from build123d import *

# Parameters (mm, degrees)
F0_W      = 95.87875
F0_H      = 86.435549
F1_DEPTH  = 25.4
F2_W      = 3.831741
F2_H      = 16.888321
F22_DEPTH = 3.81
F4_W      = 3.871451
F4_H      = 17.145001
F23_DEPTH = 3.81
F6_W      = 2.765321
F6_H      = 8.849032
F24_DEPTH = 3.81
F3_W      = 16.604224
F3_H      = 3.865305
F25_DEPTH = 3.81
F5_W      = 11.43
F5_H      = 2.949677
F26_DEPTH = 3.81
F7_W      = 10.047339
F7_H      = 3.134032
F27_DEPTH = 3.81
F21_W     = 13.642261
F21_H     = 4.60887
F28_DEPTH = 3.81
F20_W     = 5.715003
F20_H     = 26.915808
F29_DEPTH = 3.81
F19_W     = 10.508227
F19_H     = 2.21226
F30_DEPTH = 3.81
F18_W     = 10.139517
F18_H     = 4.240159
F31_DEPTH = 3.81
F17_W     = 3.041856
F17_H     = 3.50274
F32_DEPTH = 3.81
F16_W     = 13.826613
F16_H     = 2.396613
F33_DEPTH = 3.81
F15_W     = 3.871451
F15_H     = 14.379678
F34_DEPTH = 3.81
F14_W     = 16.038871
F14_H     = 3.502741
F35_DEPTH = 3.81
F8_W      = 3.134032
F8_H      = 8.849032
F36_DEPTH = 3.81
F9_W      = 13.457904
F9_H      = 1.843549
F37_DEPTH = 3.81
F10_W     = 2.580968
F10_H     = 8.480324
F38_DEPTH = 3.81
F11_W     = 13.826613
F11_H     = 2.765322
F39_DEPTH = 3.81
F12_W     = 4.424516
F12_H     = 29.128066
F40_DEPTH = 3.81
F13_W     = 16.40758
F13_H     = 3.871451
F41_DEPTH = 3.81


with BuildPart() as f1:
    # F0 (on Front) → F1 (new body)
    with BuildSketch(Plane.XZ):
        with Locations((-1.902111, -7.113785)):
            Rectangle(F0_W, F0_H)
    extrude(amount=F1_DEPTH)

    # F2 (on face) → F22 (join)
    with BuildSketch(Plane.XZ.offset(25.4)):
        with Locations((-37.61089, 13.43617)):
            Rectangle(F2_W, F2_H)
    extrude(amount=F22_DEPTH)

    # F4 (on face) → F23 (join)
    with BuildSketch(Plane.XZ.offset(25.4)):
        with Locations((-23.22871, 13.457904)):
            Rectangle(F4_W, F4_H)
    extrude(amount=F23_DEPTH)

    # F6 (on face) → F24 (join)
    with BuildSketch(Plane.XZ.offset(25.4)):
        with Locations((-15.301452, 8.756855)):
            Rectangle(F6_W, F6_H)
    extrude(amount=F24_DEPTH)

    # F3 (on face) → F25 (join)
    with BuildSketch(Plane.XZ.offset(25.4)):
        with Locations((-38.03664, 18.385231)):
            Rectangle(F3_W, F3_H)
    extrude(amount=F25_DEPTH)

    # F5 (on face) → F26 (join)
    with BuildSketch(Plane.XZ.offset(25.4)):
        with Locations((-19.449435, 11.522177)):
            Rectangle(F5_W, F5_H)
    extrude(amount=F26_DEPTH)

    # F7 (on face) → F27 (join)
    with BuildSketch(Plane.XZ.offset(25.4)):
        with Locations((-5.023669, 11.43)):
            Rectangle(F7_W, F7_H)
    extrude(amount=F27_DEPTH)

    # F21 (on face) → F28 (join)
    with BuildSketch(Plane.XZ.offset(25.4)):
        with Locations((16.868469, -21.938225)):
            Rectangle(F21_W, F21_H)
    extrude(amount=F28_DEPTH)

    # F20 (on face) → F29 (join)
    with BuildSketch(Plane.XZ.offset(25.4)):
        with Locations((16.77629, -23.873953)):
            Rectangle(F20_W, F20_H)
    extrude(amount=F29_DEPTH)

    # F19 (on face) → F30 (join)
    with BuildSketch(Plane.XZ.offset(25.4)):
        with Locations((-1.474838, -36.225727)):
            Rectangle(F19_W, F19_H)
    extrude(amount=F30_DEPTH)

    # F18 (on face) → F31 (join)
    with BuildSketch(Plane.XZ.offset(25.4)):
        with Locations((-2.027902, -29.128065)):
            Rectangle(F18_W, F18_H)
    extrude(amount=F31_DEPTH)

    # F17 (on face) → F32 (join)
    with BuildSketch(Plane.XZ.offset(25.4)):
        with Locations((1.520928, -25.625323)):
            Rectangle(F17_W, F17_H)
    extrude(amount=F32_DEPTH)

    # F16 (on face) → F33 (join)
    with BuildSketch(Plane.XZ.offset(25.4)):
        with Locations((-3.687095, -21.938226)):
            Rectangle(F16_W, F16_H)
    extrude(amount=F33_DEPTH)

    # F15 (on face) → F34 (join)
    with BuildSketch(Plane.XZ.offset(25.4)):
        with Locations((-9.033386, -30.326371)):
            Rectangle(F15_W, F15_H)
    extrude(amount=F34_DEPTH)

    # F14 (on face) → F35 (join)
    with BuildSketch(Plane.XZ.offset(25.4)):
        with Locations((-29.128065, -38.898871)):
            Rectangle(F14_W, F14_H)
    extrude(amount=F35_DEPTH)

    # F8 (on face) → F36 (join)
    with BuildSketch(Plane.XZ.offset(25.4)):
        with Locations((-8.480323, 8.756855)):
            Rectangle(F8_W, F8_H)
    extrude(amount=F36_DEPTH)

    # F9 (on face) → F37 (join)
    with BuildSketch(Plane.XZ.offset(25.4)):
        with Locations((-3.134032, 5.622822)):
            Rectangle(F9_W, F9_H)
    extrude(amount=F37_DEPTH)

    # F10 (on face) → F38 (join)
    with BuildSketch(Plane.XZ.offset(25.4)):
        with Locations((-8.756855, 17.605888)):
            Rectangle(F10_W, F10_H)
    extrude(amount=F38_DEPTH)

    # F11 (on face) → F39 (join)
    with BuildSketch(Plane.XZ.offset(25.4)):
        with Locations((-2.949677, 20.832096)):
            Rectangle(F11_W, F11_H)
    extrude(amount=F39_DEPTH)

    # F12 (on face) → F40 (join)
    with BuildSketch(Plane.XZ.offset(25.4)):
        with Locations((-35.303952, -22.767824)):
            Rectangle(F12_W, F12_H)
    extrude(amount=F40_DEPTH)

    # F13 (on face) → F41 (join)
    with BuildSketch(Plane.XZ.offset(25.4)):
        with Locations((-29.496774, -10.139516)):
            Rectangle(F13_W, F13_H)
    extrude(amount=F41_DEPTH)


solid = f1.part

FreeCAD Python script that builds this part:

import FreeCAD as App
import Part
import Sketcher
Q = App.Units.Quantity

doc = App.newDocument("Part")
body = doc.addObject("PartDesign::Body", "Body")

# Sketch on XZ plane
sketch1 = body.newObject("Sketcher::SketchObject", "Sketch")
sketch1.AttachmentSupport = (doc.getObject("XZ_Plane"), [""])
sketch1.MapMode = "FlatFace"
sketch1.addGeometry(Part.LineSegment(App.Vector(-50, 36, 0), App.Vector(-50, -50, 0)), False)
sketch1.addGeometry(Part.LineSegment(App.Vector(-50, -50, 0), App.Vector(46, -50, 0)), False)
sketch1.addGeometry(Part.LineSegment(App.Vector(46, -50, 0), App.Vector(46, 36, 0)), False)
sketch1.addGeometry(Part.LineSegment(App.Vector(46, 36, 0), App.Vector(-50, 36, 0)), False)
sketch1.addConstraint(Sketcher.Constraint("Coincident", 0, 2, 1, 1))
sketch1.addConstraint(Sketcher.Constraint("Coincident", 1, 2, 2, 1))
sketch1.addConstraint(Sketcher.Constraint("Coincident", 2, 2, 3, 1))
sketch1.addConstraint(Sketcher.Constraint("Coincident", 3, 2, 0, 1))
sketch1.addConstraint(Sketcher.Constraint("Vertical", 0))
sketch1.addConstraint(Sketcher.Constraint("Horizontal", 1))
sketch1.addConstraint(Sketcher.Constraint("Vertical", 2))
sketch1.addConstraint(Sketcher.Constraint("Horizontal", 3))
sketch1.addConstraint(Sketcher.Constraint("DistanceX", 1, 1, 1, 2, 95.87875))
sketch1.addConstraint(Sketcher.Constraint("DistanceY", 0, 2, 0, 1, 86.435549))
sketch1.addConstraint(Sketcher.Constraint("DistanceY", 0, 2, -1, 1, 50.331559))
sketch1.addConstraint(Sketcher.Constraint("DistanceX", 0, 2, -1, 1, 49.841486))
pad1 = body.newObject("PartDesign::Pad", "Pad")
pad1.Profile = sketch1
pad1.Length = Q("1 in")

# Sketch on XZ plane
sketch2 = body.newObject("Sketcher::SketchObject", "Sketch001")
sketch2.AttachmentSupport = (doc.getObject("XZ_Plane"), [""])
sketch2.MapMode = "FlatFace"
sketch2.AttachmentOffset = App.Placement(App.Vector(0, 0, 1 * 25.4), App.Rotation())
sketch2.addGeometry(Part.LineSegment(App.Vector(-39.5, 21.9, 0), App.Vector(-39.5, 5, 0)), False)
sketch2.addGeometry(Part.LineSegment(App.Vector(-39.5, 5, 0), App.Vector(-35.7, 5, 0)), False)
sketch2.addGeometry(Part.LineSegment(App.Vector(-35.7, 5, 0), App.Vector(-35.7, 21.9, 0)), False)
sketch2.addGeometry(Part.LineSegment(App.Vector(-35.7, 21.9, 0), App.Vector(-39.5, 21.9, 0)), False)
sketch2.addConstraint(Sketcher.Constraint("Coincident", 0, 2, 1, 1))
sketch2.addConstraint(Sketcher.Constraint("Coincident", 1, 2, 2, 1))
sketch2.addConstraint(Sketcher.Constraint("Coincident", 2, 2, 3, 1))
sketch2.addConstraint(Sketcher.Constraint("Coincident", 3, 2, 0, 1))
sketch2.addConstraint(Sketcher.Constraint("Vertical", 0))
sketch2.addConstraint(Sketcher.Constraint("Horizontal", 1))
sketch2.addConstraint(Sketcher.Constraint("Vertical", 2))
sketch2.addConstraint(Sketcher.Constraint("Horizontal", 3))
sketch2.addConstraint(Sketcher.Constraint("DistanceX", 1, 1, 1, 2, 3.831741))
sketch2.addConstraint(Sketcher.Constraint("DistanceY", 0, 2, 0, 1, 16.888321))
sketch2.addConstraint(Sketcher.Constraint("DistanceX", 0, 2, -1, 1, 39.526761))
sketch2.addConstraint(Sketcher.Constraint("DistanceY", -1, 1, 0, 2, 4.992009))
pad2 = body.newObject("PartDesign::Pad", "Pad001")
pad2.Profile = sketch2
pad2.Length = Q("0.15 in")

# Sketch on XZ plane
sketch3 = body.newObject("Sketcher::SketchObject", "Sketch002")
sketch3.AttachmentSupport = (doc.getObject("XZ_Plane"), [""])
sketch3.MapMode = "FlatFace"
sketch3.AttachmentOffset = App.Placement(App.Vector(0, 0, 1 * 25.4), App.Rotation())
sketch3.addGeometry(Part.LineSegment(App.Vector(-25.2, 22, 0), App.Vector(-25.2, 4.9, 0)), False)
sketch3.addGeometry(Part.LineSegment(App.Vector(-25.2, 4.9, 0), App.Vector(-21.3, 4.9, 0)), False)
sketch3.addGeometry(Part.LineSegment(App.Vector(-21.3, 4.9, 0), App.Vector(-21.3, 22, 0)), False)
sketch3.addGeometry(Part.LineSegment(App.Vector(-21.3, 22, 0), App.Vector(-25.2, 22, 0)), False)
sketch3.addConstraint(Sketcher.Constraint("Coincident", 0, 2, 1, 1))
sketch3.addConstraint(Sketcher.Constraint("Coincident", 1, 2, 2, 1))
sketch3.addConstraint(Sketcher.Constraint("Coincident", 2, 2, 3, 1))
sketch3.addConstraint(Sketcher.Constraint("Coincident", 3, 2, 0, 1))
sketch3.addConstraint(Sketcher.Constraint("Vertical", 0))
sketch3.addConstraint(Sketcher.Constraint("Horizontal", 1))
sketch3.addConstraint(Sketcher.Constraint("Vertical", 2))
sketch3.addConstraint(Sketcher.Constraint("Horizontal", 3))
sketch3.addConstraint(Sketcher.Constraint("DistanceY", 0, 2, 0, 1, Q("0.675 in")))
sketch3.addConstraint(Sketcher.Constraint("DistanceX", 1, 1, 1, 2, 3.871451))
sketch3.addConstraint(Sketcher.Constraint("DistanceX", 0, 2, -1, 1, 25.164435))
sketch3.addConstraint(Sketcher.Constraint("DistanceY", -1, 1, 0, 2, 4.885403))
pad3 = body.newObject("PartDesign::Pad", "Pad002")
pad3.Profile = sketch3
pad3.Length = Q("0.15 in")

# Sketch on XZ plane
sketch4 = body.newObject("Sketcher::SketchObject", "Sketch003")
sketch4.AttachmentSupport = (doc.getObject("XZ_Plane"), [""])
sketch4.MapMode = "FlatFace"
sketch4.AttachmentOffset = App.Placement(App.Vector(0, 0, 1 * 25.4), App.Rotation())
sketch4.addGeometry(Part.LineSegment(App.Vector(-16.7, 13.2, 0), App.Vector(-16.7, 4.3, 0)), False)
sketch4.addGeometry(Part.LineSegment(App.Vector(-16.7, 4.3, 0), App.Vector(-13.9, 4.3, 0)), False)
sketch4.addGeometry(Part.LineSegment(App.Vector(-13.9, 4.3, 0), App.Vector(-13.9, 13.2, 0)), False)
sketch4.addGeometry(Part.LineSegment(App.Vector(-13.9, 13.2, 0), App.Vector(-16.7, 13.2, 0)), False)
sketch4.addConstraint(Sketcher.Constraint("Coincident", 0, 2, 1, 1))
sketch4.addConstraint(Sketcher.Constraint("Coincident", 1, 2, 2, 1))
sketch4.addConstraint(Sketcher.Constraint("Coincident", 2, 2, 3, 1))
sketch4.addConstraint(Sketcher.Constraint("Coincident", 3, 2, 0, 1))
sketch4.addConstraint(Sketcher.Constraint("Vertical", 0))
sketch4.addConstraint(Sketcher.Constraint("Horizontal", 1))
sketch4.addConstraint(Sketcher.Constraint("Vertical", 2))
sketch4.addConstraint(Sketcher.Constraint("Horizontal", 3))
sketch4.addConstraint(Sketcher.Constraint("DistanceX", 1, 1, 1, 2, 2.765321))
sketch4.addConstraint(Sketcher.Constraint("DistanceY", 0, 2, 0, 1, 8.849032))
sketch4.addConstraint(Sketcher.Constraint("DistanceY", -1, 1, 0, 2, 4.332339))
sketch4.addConstraint(Sketcher.Constraint("DistanceX", 1, 2, -1, 1, 13.918791))
pad4 = body.newObject("PartDesign::Pad", "Pad003")
pad4.Profile = sketch4
pad4.Length = Q("0.15 in")

# Sketch on XZ plane
sketch5 = body.newObject("Sketcher::SketchObject", "Sketch004")
sketch5.AttachmentSupport = (doc.getObject("XZ_Plane"), [""])
sketch5.MapMode = "FlatFace"
sketch5.AttachmentOffset = App.Placement(App.Vector(0, 0, 1 * 25.4), App.Rotation())
sketch5.addGeometry(Part.LineSegment(App.Vector(-46.3, 20.3, 0), App.Vector(-46.3, 16.5, 0)), False)
sketch5.addGeometry(Part.LineSegment(App.Vector(-46.3, 16.5, 0), App.Vector(-29.7, 16.5, 0)), False)
sketch5.addGeometry(Part.LineSegment(App.Vector(-29.7, 16.5, 0), App.Vector(-29.7, 20.3, 0)), False)
sketch5.addGeometry(Part.LineSegment(App.Vector(-29.7, 20.3, 0), App.Vector(-46.3, 20.3, 0)), False)
sketch5.addConstraint(Sketcher.Constraint("Coincident", 0, 2, 1, 1))
sketch5.addConstraint(Sketcher.Constraint("Coincident", 1, 2, 2, 1))
sketch5.addConstraint(Sketcher.Constraint("Coincident", 2, 2, 3, 1))
sketch5.addConstraint(Sketcher.Constraint("Coincident", 3, 2, 0, 1))
sketch5.addConstraint(Sketcher.Constraint("Vertical", 0))
sketch5.addConstraint(Sketcher.Constraint("Horizontal", 1))
sketch5.addConstraint(Sketcher.Constraint("Vertical", 2))
sketch5.addConstraint(Sketcher.Constraint("Horizontal", 3))
sketch5.addConstraint(Sketcher.Constraint("DistanceX", 1, 1, 1, 2, 16.604224))
sketch5.addConstraint(Sketcher.Constraint("DistanceY", 0, 2, 0, 1, 3.865305))
sketch5.addConstraint(Sketcher.Constraint("DistanceY", -1, 1, 0, 2, 16.452579))
sketch5.addConstraint(Sketcher.Constraint("DistanceX", 1, 2, -1, 1, 29.734528))
pad5 = body.newObject("PartDesign::Pad", "Pad004")
pad5.Profile = sketch5
pad5.Length = Q("0.15 in")

# Sketch on XZ plane
sketch6 = body.newObject("Sketcher::SketchObject", "Sketch005")
sketch6.AttachmentSupport = (doc.getObject("XZ_Plane"), [""])
sketch6.MapMode = "FlatFace"
sketch6.AttachmentOffset = App.Placement(App.Vector(0, 0, 1 * 25.4), App.Rotation())
sketch6.addGeometry(Part.LineSegment(App.Vector(-25.2, 13, 0), App.Vector(-25.2, 10, 0)), False)
sketch6.addGeometry(Part.LineSegment(App.Vector(-25.2, 10, 0), App.Vector(-13.7, 10, 0)), False)
sketch6.addGeometry(Part.LineSegment(App.Vector(-13.7, 10, 0), App.Vector(-13.7, 13, 0)), False)
sketch6.addGeometry(Part.LineSegment(App.Vector(-13.7, 13, 0), App.Vector(-25.2, 13, 0)), False)
sketch6.addConstraint(Sketcher.Constraint("Coincident", 0, 2, 1, 1))
sketch6.addConstraint(Sketcher.Constraint("Coincident", 1, 2, 2, 1))
sketch6.addConstraint(Sketcher.Constraint("Coincident", 2, 2, 3, 1))
sketch6.addConstraint(Sketcher.Constraint("Coincident", 3, 2, 0, 1))
sketch6.addConstraint(Sketcher.Constraint("Vertical", 0))
sketch6.addConstraint(Sketcher.Constraint("Horizontal", 1))
sketch6.addConstraint(Sketcher.Constraint("Vertical", 2))
sketch6.addConstraint(Sketcher.Constraint("Horizontal", 3))
sketch6.addConstraint(Sketcher.Constraint("DistanceX", 1, 1, 1, 2, Q("0.45 in")))
sketch6.addConstraint(Sketcher.Constraint("DistanceY", 0, 2, 0, 1, 2.949677))
sketch6.addConstraint(Sketcher.Constraint("DistanceY", -1, 1, 0, 2, 10.047339))
sketch6.addConstraint(Sketcher.Constraint("DistanceX", 0, 2, -1, 1, 25.164435))
pad6 = body.newObject("PartDesign::Pad", "Pad005")
pad6.Profile = sketch6
pad6.Length = Q("0.15 in")

# Sketch on XZ plane
sketch7 = body.newObject("Sketcher::SketchObject", "Sketch006")
sketch7.AttachmentSupport = (doc.getObject("XZ_Plane"), [""])
sketch7.MapMode = "FlatFace"
sketch7.AttachmentOffset = App.Placement(App.Vector(0, 0, 1 * 25.4), App.Rotation())
sketch7.addGeometry(Part.LineSegment(App.Vector(-10, 13, 0), App.Vector(-10, 9.9, 0)), False)
sketch7.addGeometry(Part.LineSegment(App.Vector(-10, 9.9, 0), App.Vector(0, 9.9, 0)), False)
sketch7.addGeometry(Part.LineSegment(App.Vector(0, 9.9, 0), App.Vector(0, 13, 0)), False)
sketch7.addGeometry(Part.LineSegment(App.Vector(0, 13, 0), App.Vector(-10, 13, 0)), False)
sketch7.addConstraint(Sketcher.Constraint("Coincident", 0, 2, 1, 1))
sketch7.addConstraint(Sketcher.Constraint("Coincident", 1, 2, 2, 1))
sketch7.addConstraint(Sketcher.Constraint("Coincident", 2, 2, 3, 1))
sketch7.addConstraint(Sketcher.Constraint("Coincident", 3, 2, 0, 1))
sketch7.addConstraint(Sketcher.Constraint("Vertical", 0))
sketch7.addConstraint(Sketcher.Constraint("Horizontal", 1))
sketch7.addConstraint(Sketcher.Constraint("Vertical", 2))
sketch7.addConstraint(Sketcher.Constraint("Horizontal", 3))
sketch7.addConstraint(Sketcher.Constraint("PointOnObject", 1, 2, -2))
sketch7.addConstraint(Sketcher.Constraint("DistanceX", 1, 1, 1, 2, 10.047339))
sketch7.addConstraint(Sketcher.Constraint("DistanceY", 0, 2, 0, 1, 3.134032))
sketch7.addConstraint(Sketcher.Constraint("DistanceY", -1, 1, 0, 2, 9.862984))
pad7 = body.newObject("PartDesign::Pad", "Pad006")
pad7.Profile = sketch7
pad7.Length = Q("0.15 in")

# Sketch on XZ plane
sketch8 = body.newObject("Sketcher::SketchObject", "Sketch007")
sketch8.AttachmentSupport = (doc.getObject("XZ_Plane"), [""])
sketch8.MapMode = "FlatFace"
sketch8.AttachmentOffset = App.Placement(App.Vector(0, 0, 1 * 25.4), App.Rotation())
sketch8.addGeometry(Part.LineSegment(App.Vector(10, -19.6, 0), App.Vector(10, -24.2, 0)), False)
sketch8.addGeometry(Part.LineSegment(App.Vector(10, -24.2, 0), App.Vector(23.7, -24.2, 0)), False)
sketch8.addGeometry(Part.LineSegment(App.Vector(23.7, -24.2, 0), App.Vector(23.7, -19.6, 0)), False)
sketch8.addGeometry(Part.LineSegment(App.Vector(23.7, -19.6, 0), App.Vector(10, -19.6, 0)), False)
sketch8.addConstraint(Sketcher.Constraint("Coincident", 0, 2, 1, 1))
sketch8.addConstraint(Sketcher.Constraint("Coincident", 1, 2, 2, 1))
sketch8.addConstraint(Sketcher.Constraint("Coincident", 2, 2, 3, 1))
sketch8.addConstraint(Sketcher.Constraint("Coincident", 3, 2, 0, 1))
sketch8.addConstraint(Sketcher.Constraint("Vertical", 0))
sketch8.addConstraint(Sketcher.Constraint("Horizontal", 1))
sketch8.addConstraint(Sketcher.Constraint("Vertical", 2))
sketch8.addConstraint(Sketcher.Constraint("Horizontal", 3))
sketch8.addConstraint(Sketcher.Constraint("DistanceX", 1, 1, 1, 2, 13.642261))
sketch8.addConstraint(Sketcher.Constraint("DistanceY", 0, 2, 0, 1, 4.60887))
sketch8.addConstraint(Sketcher.Constraint("DistanceX", -1, 1, 1, 2, 23.689599))
sketch8.addConstraint(Sketcher.Constraint("DistanceY", 0, 2, -1, 1, 24.24266))
pad8 = body.newObject("PartDesign::Pad", "Pad007")
pad8.Profile = sketch8
pad8.Length = Q("0.15 in")

# Sketch on XZ plane
sketch9 = body.newObject("Sketcher::SketchObject", "Sketch008")
sketch9.AttachmentSupport = (doc.getObject("XZ_Plane"), [""])
sketch9.MapMode = "FlatFace"
sketch9.AttachmentOffset = App.Placement(App.Vector(0, 0, 1 * 25.4), App.Rotation())
sketch9.addGeometry(Part.LineSegment(App.Vector(14, -10, 0), App.Vector(14, -37, 0)), False)
sketch9.addGeometry(Part.LineSegment(App.Vector(14, -37, 0), App.Vector(20, -37, 0)), False)
sketch9.addGeometry(Part.LineSegment(App.Vector(20, -37, 0), App.Vector(20, -10, 0)), False)
sketch9.addGeometry(Part.LineSegment(App.Vector(20, -10, 0), App.Vector(14, -10, 0)), False)
sketch9.addConstraint(Sketcher.Constraint("Coincident", 0, 2, 1, 1))
sketch9.addConstraint(Sketcher.Constraint("Coincident", 1, 2, 2, 1))
sketch9.addConstraint(Sketcher.Constraint("Coincident", 2, 2, 3, 1))
sketch9.addConstraint(Sketcher.Constraint("Coincident", 3, 2, 0, 1))
sketch9.addConstraint(Sketcher.Constraint("Vertical", 0))
sketch9.addConstraint(Sketcher.Constraint("Horizontal", 1))
sketch9.addConstraint(Sketcher.Constraint("Vertical", 2))
sketch9.addConstraint(Sketcher.Constraint("Horizontal", 3))
sketch9.addConstraint(Sketcher.Constraint("DistanceX", 1, 1, 1, 2, Q("0.2250001 in")))
sketch9.addConstraint(Sketcher.Constraint("DistanceY", 0, 2, 0, 1, 26.915808))
sketch9.addConstraint(Sketcher.Constraint("DistanceX", -1, 1, 0, 2, 13.918788))
sketch9.addConstraint(Sketcher.Constraint("DistanceY", 2, 2, -1, 1, 10.416049))
pad9 = body.newObject("PartDesign::Pad", "Pad008")
pad9.Profile = sketch9
pad9.Length = Q("0.15 in")

# Sketch on XZ plane
sketch10 = body.newObject("Sketcher::SketchObject", "Sketch009")
sketch10.AttachmentSupport = (doc.getObject("XZ_Plane"), [""])
sketch10.MapMode = "FlatFace"
sketch10.AttachmentOffset = App.Placement(App.Vector(0, 0, 1 * 25.4), App.Rotation())
sketch10.addGeometry(Part.LineSegment(App.Vector(-6.7, -35.1, 0), App.Vector(-6.7, -37.3, 0)), False)
sketch10.addGeometry(Part.LineSegment(App.Vector(-6.7, -37.3, 0), App.Vector(3.8, -37.3, 0)), False)
sketch10.addGeometry(Part.LineSegment(App.Vector(3.8, -37.3, 0), App.Vector(3.8, -35.1, 0)), False)
sketch10.addGeometry(Part.LineSegment(App.Vector(3.8, -35.1, 0), App.Vector(-6.7, -35.1, 0)), False)
sketch10.addConstraint(Sketcher.Constraint("Coincident", 0, 2, 1, 1))
sketch10.addConstraint(Sketcher.Constraint("Coincident", 1, 2, 2, 1))
sketch10.addConstraint(Sketcher.Constraint("Coincident", 2, 2, 3, 1))
sketch10.addConstraint(Sketcher.Constraint("Coincident", 3, 2, 0, 1))
sketch10.addConstraint(Sketcher.Constraint("Vertical", 0))
sketch10.addConstraint(Sketcher.Constraint("Horizontal", 1))
sketch10.addConstraint(Sketcher.Constraint("Vertical", 2))
sketch10.addConstraint(Sketcher.Constraint("Horizontal", 3))
sketch10.addConstraint(Sketcher.Constraint("DistanceY", 0, 2, 0, 1, 2.21226))
sketch10.addConstraint(Sketcher.Constraint("DistanceX", 1, 1, 1, 2, 10.508227))
sketch10.addConstraint(Sketcher.Constraint("DistanceX", 0, 2, -1, 1, 6.728951))
sketch10.addConstraint(Sketcher.Constraint("DistanceY", 0, 2, -1, 1, 37.331857))
pad10 = body.newObject("PartDesign::Pad", "Pad009")
pad10.Profile = sketch10
pad10.Length = Q("0.15 in")

# Sketch on XZ plane
sketch11 = body.newObject("Sketcher::SketchObject", "Sketch010")
sketch11.AttachmentSupport = (doc.getObject("XZ_Plane"), [""])
sketch11.MapMode = "FlatFace"
sketch11.AttachmentOffset = App.Placement(App.Vector(0, 0, 1 * 25.4), App.Rotation())
sketch11.addGeometry(Part.LineSegment(App.Vector(-7.1, -27, 0), App.Vector(-7.1, -31.2, 0)), False)
sketch11.addGeometry(Part.LineSegment(App.Vector(-7.1, -31.2, 0), App.Vector(3, -31.2, 0)), False)
sketch11.addGeometry(Part.LineSegment(App.Vector(3, -31.2, 0), App.Vector(3, -27, 0)), False)
sketch11.addGeometry(Part.LineSegment(App.Vector(3, -27, 0), App.Vector(-7.1, -27, 0)), False)
sketch11.addConstraint(Sketcher.Constraint("Coincident", 0, 2, 1, 1))
sketch11.addConstraint(Sketcher.Constraint("Coincident", 1, 2, 2, 1))
sketch11.addConstraint(Sketcher.Constraint("Coincident", 2, 2, 3, 1))
sketch11.addConstraint(Sketcher.Constraint("Coincident", 3, 2, 0, 1))
sketch11.addConstraint(Sketcher.Constraint("Vertical", 0))
sketch11.addConstraint(Sketcher.Constraint("Horizontal", 1))
sketch11.addConstraint(Sketcher.Constraint("Vertical", 2))
sketch11.addConstraint(Sketcher.Constraint("Horizontal", 3))
sketch11.addConstraint(Sketcher.Constraint("DistanceY", 0, 2, 0, 1, 4.240159))
sketch11.addConstraint(Sketcher.Constraint("DistanceX", 1, 1, 1, 2, 10.139517))
sketch11.addConstraint(Sketcher.Constraint("DistanceX", 0, 2, -1, 1, 7.09766))
sketch11.addConstraint(Sketcher.Constraint("DistanceY", 0, 2, -1, 1, 31.248144))
pad11 = body.newObject("PartDesign::Pad", "Pad010")
pad11.Profile = sketch11
pad11.Length = Q("0.15 in")

# Sketch on XZ plane
sketch12 = body.newObject("Sketcher::SketchObject", "Sketch011")
sketch12.AttachmentSupport = (doc.getObject("XZ_Plane"), [""])
sketch12.MapMode = "FlatFace"
sketch12.AttachmentOffset = App.Placement(App.Vector(0, 0, 1 * 25.4), App.Rotation())
sketch12.addGeometry(Part.LineSegment(App.Vector(0, -23.9, 0), App.Vector(0, -27.4, 0)), False)
sketch12.addGeometry(Part.LineSegment(App.Vector(0, -27.4, 0), App.Vector(3, -27.4, 0)), False)
sketch12.addGeometry(Part.LineSegment(App.Vector(3, -27.4, 0), App.Vector(3, -23.9, 0)), False)
sketch12.addGeometry(Part.LineSegment(App.Vector(3, -23.9, 0), App.Vector(0, -23.9, 0)), False)
sketch12.addConstraint(Sketcher.Constraint("Coincident", 0, 2, 1, 1))
sketch12.addConstraint(Sketcher.Constraint("Coincident", 1, 2, 2, 1))
sketch12.addConstraint(Sketcher.Constraint("Coincident", 2, 2, 3, 1))
sketch12.addConstraint(Sketcher.Constraint("Coincident", 3, 2, 0, 1))
sketch12.addConstraint(Sketcher.Constraint("Vertical", 0))
sketch12.addConstraint(Sketcher.Constraint("Horizontal", 1))
sketch12.addConstraint(Sketcher.Constraint("Vertical", 2))
sketch12.addConstraint(Sketcher.Constraint("Horizontal", 3))
sketch12.addConstraint(Sketcher.Constraint("PointOnObject", 0, 2, -2))
sketch12.addConstraint(Sketcher.Constraint("DistanceY", 0, 2, 0, 1, 3.50274))
sketch12.addConstraint(Sketcher.Constraint("DistanceX", 1, 1, 1, 2, 3.041856))
sketch12.addConstraint(Sketcher.Constraint("DistanceY", 0, 2, -1, 1, 27.376693))
pad12 = body.newObject("PartDesign::Pad", "Pad011")
pad12.Profile = sketch12
pad12.Length = Q("0.15 in")

# Sketch on XZ plane
sketch13 = body.newObject("Sketcher::SketchObject", "Sketch012")
sketch13.AttachmentSupport = (doc.getObject("XZ_Plane"), [""])
sketch13.MapMode = "FlatFace"
sketch13.AttachmentOffset = App.Placement(App.Vector(0, 0, 1 * 25.4), App.Rotation())
sketch13.addGeometry(Part.LineSegment(App.Vector(-10.6, -20.7, 0), App.Vector(-10.6, -23.1, 0)), False)
sketch13.addGeometry(Part.LineSegment(App.Vector(-10.6, -23.1, 0), App.Vector(3.2, -23.1, 0)), False)
sketch13.addGeometry(Part.LineSegment(App.Vector(3.2, -23.1, 0), App.Vector(3.2, -20.7, 0)), False)
sketch13.addGeometry(Part.LineSegment(App.Vector(3.2, -20.7, 0), App.Vector(-10.6, -20.7, 0)), False)
sketch13.addConstraint(Sketcher.Constraint("Coincident", 0, 2, 1, 1))
sketch13.addConstraint(Sketcher.Constraint("Coincident", 1, 2, 2, 1))
sketch13.addConstraint(Sketcher.Constraint("Coincident", 2, 2, 3, 1))
sketch13.addConstraint(Sketcher.Constraint("Coincident", 3, 2, 0, 1))
sketch13.addConstraint(Sketcher.Constraint("Vertical", 0))
sketch13.addConstraint(Sketcher.Constraint("Horizontal", 1))
sketch13.addConstraint(Sketcher.Constraint("Vertical", 2))
sketch13.addConstraint(Sketcher.Constraint("Horizontal", 3))
sketch13.addConstraint(Sketcher.Constraint("DistanceX", 0, 2, -1, 1, 10.600402))
sketch13.addConstraint(Sketcher.Constraint("DistanceX", 1, 1, 1, 2, 13.826613))
sketch13.addConstraint(Sketcher.Constraint("DistanceY", 0, 2, 0, 1, 2.396613))
sketch13.addConstraint(Sketcher.Constraint("DistanceY", 2, 2, -1, 1, 20.739919))
pad13 = body.newObject("PartDesign::Pad", "Pad012")
pad13.Profile = sketch13
pad13.Length = Q("0.15 in")

# Sketch on XZ plane
sketch14 = body.newObject("Sketcher::SketchObject", "Sketch013")
sketch14.AttachmentSupport = (doc.getObject("XZ_Plane"), [""])
sketch14.MapMode = "FlatFace"
sketch14.AttachmentOffset = App.Placement(App.Vector(0, 0, 1 * 25.4), App.Rotation())
sketch14.addGeometry(Part.LineSegment(App.Vector(-11, -23.1, 0), App.Vector(-11, -37.5, 0)), False)
sketch14.addGeometry(Part.LineSegment(App.Vector(-11, -37.5, 0), App.Vector(-7.1, -37.5, 0)), False)
sketch14.addGeometry(Part.LineSegment(App.Vector(-7.1, -37.5, 0), App.Vector(-7.1, -23.1, 0)), False)
sketch14.addGeometry(Part.LineSegment(App.Vector(-7.1, -23.1, 0), App.Vector(-11, -23.1, 0)), False)
sketch14.addConstraint(Sketcher.Constraint("Coincident", 0, 2, 1, 1))
sketch14.addConstraint(Sketcher.Constraint("Coincident", 1, 2, 2, 1))
sketch14.addConstraint(Sketcher.Constraint("Coincident", 2, 2, 3, 1))
sketch14.addConstraint(Sketcher.Constraint("Coincident", 3, 2, 0, 1))
sketch14.addConstraint(Sketcher.Constraint("Vertical", 0))
sketch14.addConstraint(Sketcher.Constraint("Horizontal", 1))
sketch14.addConstraint(Sketcher.Constraint("Vertical", 2))
sketch14.addConstraint(Sketcher.Constraint("Horizontal", 3))
sketch14.addConstraint(Sketcher.Constraint("DistanceX", 1, 1, 1, 2, 3.871451))
sketch14.addConstraint(Sketcher.Constraint("DistanceY", 0, 2, 0, 1, 14.379678))
sketch14.addConstraint(Sketcher.Constraint("DistanceX", 0, 2, -1, 1, 10.969112))
sketch14.addConstraint(Sketcher.Constraint("DistanceY", 0, 2, -1, 1, 37.51621))
pad14 = body.newObject("PartDesign::Pad", "Pad013")
pad14.Profile = sketch14
pad14.Length = Q("0.15 in")

# Sketch on XZ plane
sketch15 = body.newObject("Sketcher::SketchObject", "Sketch014")
sketch15.AttachmentSupport = (doc.getObject("XZ_Plane"), [""])
sketch15.MapMode = "FlatFace"
sketch15.AttachmentOffset = App.Placement(App.Vector(0, 0, 1 * 25.4), App.Rotation())
sketch15.addGeometry(Part.LineSegment(App.Vector(-37.1, -37.1, 0), App.Vector(-37.1, -40.7, 0)), False)
sketch15.addGeometry(Part.LineSegment(App.Vector(-37.1, -40.7, 0), App.Vector(-21.1, -40.7, 0)), False)
sketch15.addGeometry(Part.LineSegment(App.Vector(-21.1, -40.7, 0), App.Vector(-21.1, -37.1, 0)), False)
sketch15.addGeometry(Part.LineSegment(App.Vector(-21.1, -37.1, 0), App.Vector(-37.1, -37.1, 0)), False)
sketch15.addConstraint(Sketcher.Constraint("Coincident", 0, 2, 1, 1))
sketch15.addConstraint(Sketcher.Constraint("Coincident", 1, 2, 2, 1))
sketch15.addConstraint(Sketcher.Constraint("Coincident", 2, 2, 3, 1))
sketch15.addConstraint(Sketcher.Constraint("Coincident", 3, 2, 0, 1))
sketch15.addConstraint(Sketcher.Constraint("Vertical", 0))
sketch15.addConstraint(Sketcher.Constraint("Horizontal", 1))
sketch15.addConstraint(Sketcher.Constraint("Vertical", 2))
sketch15.addConstraint(Sketcher.Constraint("Horizontal", 3))
sketch15.addConstraint(Sketcher.Constraint("DistanceX", 0, 2, -1, 1, Q("1.4625 in")))
sketch15.addConstraint(Sketcher.Constraint("DistanceY", 2, 2, -1, 1, Q("1.4625 in")))
sketch15.addConstraint(Sketcher.Constraint("DistanceX", 1, 1, 1, 2, 16.038871))
sketch15.addConstraint(Sketcher.Constraint("DistanceY", 0, 2, 0, 1, 3.502741))
pad15 = body.newObject("PartDesign::Pad", "Pad014")
pad15.Profile = sketch15
pad15.Length = Q("0.15 in")

# Sketch on XZ plane
sketch16 = body.newObject("Sketcher::SketchObject", "Sketch015")
sketch16.AttachmentSupport = (doc.getObject("XZ_Plane"), [""])
sketch16.MapMode = "FlatFace"
sketch16.AttachmentOffset = App.Placement(App.Vector(0, 0, 1 * 25.4), App.Rotation())
sketch16.addGeometry(Part.LineSegment(App.Vector(-10, 13.2, 0), App.Vector(-10, 4.3, 0)), False)
sketch16.addGeometry(Part.LineSegment(App.Vector(-10, 4.3, 0), App.Vector(-6.9, 4.3, 0)), False)
sketch16.addGeometry(Part.LineSegment(App.Vector(-6.9, 4.3, 0), App.Vector(-6.9, 13.2, 0)), False)
sketch16.addGeometry(Part.LineSegment(App.Vector(-6.9, 13.2, 0), App.Vector(-10, 13.2, 0)), False)
sketch16.addConstraint(Sketcher.Constraint("Coincident", 0, 2, 1, 1))
sketch16.addConstraint(Sketcher.Constraint("Coincident", 1, 2, 2, 1))
sketch16.addConstraint(Sketcher.Constraint("Coincident", 2, 2, 3, 1))
sketch16.addConstraint(Sketcher.Constraint("Coincident", 3, 2, 0, 1))
sketch16.addConstraint(Sketcher.Constraint("Vertical", 0))
sketch16.addConstraint(Sketcher.Constraint("Horizontal", 1))
sketch16.addConstraint(Sketcher.Constraint("Vertical", 2))
sketch16.addConstraint(Sketcher.Constraint("Horizontal", 3))
sketch16.addConstraint(Sketcher.Constraint("DistanceX", 1, 1, 1, 2, 3.134032))
sketch16.addConstraint(Sketcher.Constraint("DistanceY", 0, 2, 0, 1, 8.849032))
sketch16.addConstraint(Sketcher.Constraint("DistanceX", 0, 2, -1, 1, 10.047339))
sketch16.addConstraint(Sketcher.Constraint("DistanceY", -1, 1, 0, 2, 4.332339))
pad16 = body.newObject("PartDesign::Pad", "Pad015")
pad16.Profile = sketch16
pad16.Length = Q("0.15 in")

# Sketch on XZ plane
sketch17 = body.newObject("Sketcher::SketchObject", "Sketch016")
sketch17.AttachmentSupport = (doc.getObject("XZ_Plane"), [""])
sketch17.MapMode = "FlatFace"
sketch17.AttachmentOffset = App.Placement(App.Vector(0, 0, 1 * 25.4), App.Rotation())
sketch17.addGeometry(Part.LineSegment(App.Vector(-9.9, 6.5, 0), App.Vector(-9.9, 4.7, 0)), False)
sketch17.addGeometry(Part.LineSegment(App.Vector(-9.9, 4.7, 0), App.Vector(3.6, 4.7, 0)), False)
sketch17.addGeometry(Part.LineSegment(App.Vector(3.6, 4.7, 0), App.Vector(3.6, 6.5, 0)), False)
sketch17.addGeometry(Part.LineSegment(App.Vector(3.6, 6.5, 0), App.Vector(-9.9, 6.5, 0)), False)
sketch17.addConstraint(Sketcher.Constraint("Coincident", 0, 2, 1, 1))
sketch17.addConstraint(Sketcher.Constraint("Coincident", 1, 2, 2, 1))
sketch17.addConstraint(Sketcher.Constraint("Coincident", 2, 2, 3, 1))
sketch17.addConstraint(Sketcher.Constraint("Coincident", 3, 2, 0, 1))
sketch17.addConstraint(Sketcher.Constraint("Vertical", 0))
sketch17.addConstraint(Sketcher.Constraint("Horizontal", 1))
sketch17.addConstraint(Sketcher.Constraint("Vertical", 2))
sketch17.addConstraint(Sketcher.Constraint("Horizontal", 3))
sketch17.addConstraint(Sketcher.Constraint("DistanceY", 0, 2, 0, 1, 1.843549))
sketch17.addConstraint(Sketcher.Constraint("DistanceX", 1, 1, 1, 2, 13.457904))
sketch17.addConstraint(Sketcher.Constraint("DistanceX", -1, 1, 1, 2, 3.59492))
sketch17.addConstraint(Sketcher.Constraint("DistanceY", -1, 1, 0, 2, 4.701047))
pad17 = body.newObject("PartDesign::Pad", "Pad016")
pad17.Profile = sketch17
pad17.Length = Q("0.15 in")

# Sketch on XZ plane
sketch18 = body.newObject("Sketcher::SketchObject", "Sketch017")
sketch18.AttachmentSupport = (doc.getObject("XZ_Plane"), [""])
sketch18.MapMode = "FlatFace"
sketch18.AttachmentOffset = App.Placement(App.Vector(0, 0, 1 * 25.4), App.Rotation())
sketch18.addGeometry(Part.LineSegment(App.Vector(-10, 21.8, 0), App.Vector(-10, 13.4, 0)), False)
sketch18.addGeometry(Part.LineSegment(App.Vector(-10, 13.4, 0), App.Vector(-7.5, 13.4, 0)), False)
sketch18.addGeometry(Part.LineSegment(App.Vector(-7.5, 13.4, 0), App.Vector(-7.5, 21.8, 0)), False)
sketch18.addGeometry(Part.LineSegment(App.Vector(-7.5, 21.8, 0), App.Vector(-10, 21.8, 0)), False)
sketch18.addConstraint(Sketcher.Constraint("Coincident", 0, 2, 1, 1))
sketch18.addConstraint(Sketcher.Constraint("Coincident", 1, 2, 2, 1))
sketch18.addConstraint(Sketcher.Constraint("Coincident", 2, 2, 3, 1))
sketch18.addConstraint(Sketcher.Constraint("Coincident", 3, 2, 0, 1))
sketch18.addConstraint(Sketcher.Constraint("Vertical", 0))
sketch18.addConstraint(Sketcher.Constraint("Horizontal", 1))
sketch18.addConstraint(Sketcher.Constraint("Vertical", 2))
sketch18.addConstraint(Sketcher.Constraint("Horizontal", 3))
sketch18.addConstraint(Sketcher.Constraint("DistanceX", 1, 1, 1, 2, 2.580968))
sketch18.addConstraint(Sketcher.Constraint("DistanceY", 0, 2, 0, 1, 8.480324))
sketch18.addConstraint(Sketcher.Constraint("DistanceX", 0, 2, -1, 1, 10.047339))
sketch18.addConstraint(Sketcher.Constraint("DistanceY", -1, 1, 2, 2, 21.84605))
pad18 = body.newObject("PartDesign::Pad", "Pad017")
pad18.Profile = sketch18
pad18.Length = Q("0.15 in")

# Sketch on XZ plane
sketch19 = body.newObject("Sketcher::SketchObject", "Sketch018")
sketch19.AttachmentSupport = (doc.getObject("XZ_Plane"), [""])
sketch19.MapMode = "FlatFace"
sketch19.AttachmentOffset = App.Placement(App.Vector(0, 0, 1 * 25.4), App.Rotation())
sketch19.addGeometry(Part.LineSegment(App.Vector(-9.9, 22.2, 0), App.Vector(-9.9, 19.4, 0)), False)
sketch19.addGeometry(Part.LineSegment(App.Vector(-9.9, 19.4, 0), App.Vector(4, 19.4, 0)), False)
sketch19.addGeometry(Part.LineSegment(App.Vector(4, 19.4, 0), App.Vector(4, 22.2, 0)), False)
sketch19.addGeometry(Part.LineSegment(App.Vector(4, 22.2, 0), App.Vector(-9.9, 22.2, 0)), False)
sketch19.addConstraint(Sketcher.Constraint("Coincident", 0, 2, 1, 1))
sketch19.addConstraint(Sketcher.Constraint("Coincident", 1, 2, 2, 1))
sketch19.addConstraint(Sketcher.Constraint("Coincident", 2, 2, 3, 1))
sketch19.addConstraint(Sketcher.Constraint("Coincident", 3, 2, 0, 1))
sketch19.addConstraint(Sketcher.Constraint("Vertical", 0))
sketch19.addConstraint(Sketcher.Constraint("Horizontal", 1))
sketch19.addConstraint(Sketcher.Constraint("Vertical", 2))
sketch19.addConstraint(Sketcher.Constraint("Horizontal", 3))
sketch19.addConstraint(Sketcher.Constraint("DistanceY", 0, 2, 0, 1, 2.765322))
sketch19.addConstraint(Sketcher.Constraint("DistanceX", 1, 1, 1, 2, 13.826613))
sketch19.addConstraint(Sketcher.Constraint("DistanceX", -1, 1, 1, 2, 3.96363))
sketch19.addConstraint(Sketcher.Constraint("DistanceY", -1, 1, 0, 2, 19.449435))
pad19 = body.newObject("PartDesign::Pad", "Pad018")
pad19.Profile = sketch19
pad19.Length = Q("0.15 in")

# Sketch on XZ plane
sketch20 = body.newObject("Sketcher::SketchObject", "Sketch019")
sketch20.AttachmentSupport = (doc.getObject("XZ_Plane"), [""])
sketch20.MapMode = "FlatFace"
sketch20.AttachmentOffset = App.Placement(App.Vector(0, 0, 1 * 25.4), App.Rotation())
sketch20.addGeometry(Part.LineSegment(App.Vector(-37.5, -8.2, 0), App.Vector(-37.5, -37.3, 0)), False)
sketch20.addGeometry(Part.LineSegment(App.Vector(-37.5, -37.3, 0), App.Vector(-33.1, -37.3, 0)), False)
sketch20.addGeometry(Part.LineSegment(App.Vector(-33.1, -37.3, 0), App.Vector(-33.1, -8.2, 0)), False)
sketch20.addGeometry(Part.LineSegment(App.Vector(-33.1, -8.2, 0), App.Vector(-37.5, -8.2, 0)), False)
sketch20.addConstraint(Sketcher.Constraint("Coincident", 0, 2, 1, 1))
sketch20.addConstraint(Sketcher.Constraint("Coincident", 1, 2, 2, 1))
sketch20.addConstraint(Sketcher.Constraint("Coincident", 2, 2, 3, 1))
sketch20.addConstraint(Sketcher.Constraint("Coincident", 3, 2, 0, 1))
sketch20.addConstraint(Sketcher.Constraint("Vertical", 0))
sketch20.addConstraint(Sketcher.Constraint("Horizontal", 1))
sketch20.addConstraint(Sketcher.Constraint("Vertical", 2))
sketch20.addConstraint(Sketcher.Constraint("Horizontal", 3))
sketch20.addConstraint(Sketcher.Constraint("DistanceX", 1, 1, 1, 2, 4.424516))
sketch20.addConstraint(Sketcher.Constraint("DistanceY", 0, 2, 0, 1, 29.128066))
sketch20.addConstraint(Sketcher.Constraint("DistanceX", 0, 2, -1, 1, 37.51621))
sketch20.addConstraint(Sketcher.Constraint("DistanceY", 2, 2, -1, 1, 8.203791))
pad20 = body.newObject("PartDesign::Pad", "Pad019")
pad20.Profile = sketch20
pad20.Length = Q("0.15 in")

# Sketch on XZ plane
sketch21 = body.newObject("Sketcher::SketchObject", "Sketch020")
sketch21.AttachmentSupport = (doc.getObject("XZ_Plane"), [""])
sketch21.MapMode = "FlatFace"
sketch21.AttachmentOffset = App.Placement(App.Vector(0, 0, 1 * 25.4), App.Rotation())
sketch21.addGeometry(Part.LineSegment(App.Vector(-37.7, -8.2, 0), App.Vector(-37.7, -12.1, 0)), False)
sketch21.addGeometry(Part.LineSegment(App.Vector(-37.7, -12.1, 0), App.Vector(-21.3, -12.1, 0)), False)
sketch21.addGeometry(Part.LineSegment(App.Vector(-21.3, -12.1, 0), App.Vector(-21.3, -8.2, 0)), False)
sketch21.addGeometry(Part.LineSegment(App.Vector(-21.3, -8.2, 0), App.Vector(-37.7, -8.2, 0)), False)
sketch21.addConstraint(Sketcher.Constraint("Coincident", 0, 2, 1, 1))
sketch21.addConstraint(Sketcher.Constraint("Coincident", 1, 2, 2, 1))
sketch21.addConstraint(Sketcher.Constraint("Coincident", 2, 2, 3, 1))
sketch21.addConstraint(Sketcher.Constraint("Coincident", 3, 2, 0, 1))
sketch21.addConstraint(Sketcher.Constraint("Vertical", 0))
sketch21.addConstraint(Sketcher.Constraint("Horizontal", 1))
sketch21.addConstraint(Sketcher.Constraint("Vertical", 2))
sketch21.addConstraint(Sketcher.Constraint("Horizontal", 3))
sketch21.addConstraint(Sketcher.Constraint("DistanceX", 1, 1, 1, 2, 16.40758))
sketch21.addConstraint(Sketcher.Constraint("DistanceY", 0, 2, 0, 1, 3.871451))
sketch21.addConstraint(Sketcher.Constraint("DistanceY", 0, 2, -1, 1, 12.075242))
sketch21.addConstraint(Sketcher.Constraint("DistanceX", 0, 2, -1, 1, 37.700564))
pad21 = body.newObject("PartDesign::Pad", "Pad020")
pad21.Profile = sketch21
pad21.Length = Q("0.15 in")

doc.recompute()
